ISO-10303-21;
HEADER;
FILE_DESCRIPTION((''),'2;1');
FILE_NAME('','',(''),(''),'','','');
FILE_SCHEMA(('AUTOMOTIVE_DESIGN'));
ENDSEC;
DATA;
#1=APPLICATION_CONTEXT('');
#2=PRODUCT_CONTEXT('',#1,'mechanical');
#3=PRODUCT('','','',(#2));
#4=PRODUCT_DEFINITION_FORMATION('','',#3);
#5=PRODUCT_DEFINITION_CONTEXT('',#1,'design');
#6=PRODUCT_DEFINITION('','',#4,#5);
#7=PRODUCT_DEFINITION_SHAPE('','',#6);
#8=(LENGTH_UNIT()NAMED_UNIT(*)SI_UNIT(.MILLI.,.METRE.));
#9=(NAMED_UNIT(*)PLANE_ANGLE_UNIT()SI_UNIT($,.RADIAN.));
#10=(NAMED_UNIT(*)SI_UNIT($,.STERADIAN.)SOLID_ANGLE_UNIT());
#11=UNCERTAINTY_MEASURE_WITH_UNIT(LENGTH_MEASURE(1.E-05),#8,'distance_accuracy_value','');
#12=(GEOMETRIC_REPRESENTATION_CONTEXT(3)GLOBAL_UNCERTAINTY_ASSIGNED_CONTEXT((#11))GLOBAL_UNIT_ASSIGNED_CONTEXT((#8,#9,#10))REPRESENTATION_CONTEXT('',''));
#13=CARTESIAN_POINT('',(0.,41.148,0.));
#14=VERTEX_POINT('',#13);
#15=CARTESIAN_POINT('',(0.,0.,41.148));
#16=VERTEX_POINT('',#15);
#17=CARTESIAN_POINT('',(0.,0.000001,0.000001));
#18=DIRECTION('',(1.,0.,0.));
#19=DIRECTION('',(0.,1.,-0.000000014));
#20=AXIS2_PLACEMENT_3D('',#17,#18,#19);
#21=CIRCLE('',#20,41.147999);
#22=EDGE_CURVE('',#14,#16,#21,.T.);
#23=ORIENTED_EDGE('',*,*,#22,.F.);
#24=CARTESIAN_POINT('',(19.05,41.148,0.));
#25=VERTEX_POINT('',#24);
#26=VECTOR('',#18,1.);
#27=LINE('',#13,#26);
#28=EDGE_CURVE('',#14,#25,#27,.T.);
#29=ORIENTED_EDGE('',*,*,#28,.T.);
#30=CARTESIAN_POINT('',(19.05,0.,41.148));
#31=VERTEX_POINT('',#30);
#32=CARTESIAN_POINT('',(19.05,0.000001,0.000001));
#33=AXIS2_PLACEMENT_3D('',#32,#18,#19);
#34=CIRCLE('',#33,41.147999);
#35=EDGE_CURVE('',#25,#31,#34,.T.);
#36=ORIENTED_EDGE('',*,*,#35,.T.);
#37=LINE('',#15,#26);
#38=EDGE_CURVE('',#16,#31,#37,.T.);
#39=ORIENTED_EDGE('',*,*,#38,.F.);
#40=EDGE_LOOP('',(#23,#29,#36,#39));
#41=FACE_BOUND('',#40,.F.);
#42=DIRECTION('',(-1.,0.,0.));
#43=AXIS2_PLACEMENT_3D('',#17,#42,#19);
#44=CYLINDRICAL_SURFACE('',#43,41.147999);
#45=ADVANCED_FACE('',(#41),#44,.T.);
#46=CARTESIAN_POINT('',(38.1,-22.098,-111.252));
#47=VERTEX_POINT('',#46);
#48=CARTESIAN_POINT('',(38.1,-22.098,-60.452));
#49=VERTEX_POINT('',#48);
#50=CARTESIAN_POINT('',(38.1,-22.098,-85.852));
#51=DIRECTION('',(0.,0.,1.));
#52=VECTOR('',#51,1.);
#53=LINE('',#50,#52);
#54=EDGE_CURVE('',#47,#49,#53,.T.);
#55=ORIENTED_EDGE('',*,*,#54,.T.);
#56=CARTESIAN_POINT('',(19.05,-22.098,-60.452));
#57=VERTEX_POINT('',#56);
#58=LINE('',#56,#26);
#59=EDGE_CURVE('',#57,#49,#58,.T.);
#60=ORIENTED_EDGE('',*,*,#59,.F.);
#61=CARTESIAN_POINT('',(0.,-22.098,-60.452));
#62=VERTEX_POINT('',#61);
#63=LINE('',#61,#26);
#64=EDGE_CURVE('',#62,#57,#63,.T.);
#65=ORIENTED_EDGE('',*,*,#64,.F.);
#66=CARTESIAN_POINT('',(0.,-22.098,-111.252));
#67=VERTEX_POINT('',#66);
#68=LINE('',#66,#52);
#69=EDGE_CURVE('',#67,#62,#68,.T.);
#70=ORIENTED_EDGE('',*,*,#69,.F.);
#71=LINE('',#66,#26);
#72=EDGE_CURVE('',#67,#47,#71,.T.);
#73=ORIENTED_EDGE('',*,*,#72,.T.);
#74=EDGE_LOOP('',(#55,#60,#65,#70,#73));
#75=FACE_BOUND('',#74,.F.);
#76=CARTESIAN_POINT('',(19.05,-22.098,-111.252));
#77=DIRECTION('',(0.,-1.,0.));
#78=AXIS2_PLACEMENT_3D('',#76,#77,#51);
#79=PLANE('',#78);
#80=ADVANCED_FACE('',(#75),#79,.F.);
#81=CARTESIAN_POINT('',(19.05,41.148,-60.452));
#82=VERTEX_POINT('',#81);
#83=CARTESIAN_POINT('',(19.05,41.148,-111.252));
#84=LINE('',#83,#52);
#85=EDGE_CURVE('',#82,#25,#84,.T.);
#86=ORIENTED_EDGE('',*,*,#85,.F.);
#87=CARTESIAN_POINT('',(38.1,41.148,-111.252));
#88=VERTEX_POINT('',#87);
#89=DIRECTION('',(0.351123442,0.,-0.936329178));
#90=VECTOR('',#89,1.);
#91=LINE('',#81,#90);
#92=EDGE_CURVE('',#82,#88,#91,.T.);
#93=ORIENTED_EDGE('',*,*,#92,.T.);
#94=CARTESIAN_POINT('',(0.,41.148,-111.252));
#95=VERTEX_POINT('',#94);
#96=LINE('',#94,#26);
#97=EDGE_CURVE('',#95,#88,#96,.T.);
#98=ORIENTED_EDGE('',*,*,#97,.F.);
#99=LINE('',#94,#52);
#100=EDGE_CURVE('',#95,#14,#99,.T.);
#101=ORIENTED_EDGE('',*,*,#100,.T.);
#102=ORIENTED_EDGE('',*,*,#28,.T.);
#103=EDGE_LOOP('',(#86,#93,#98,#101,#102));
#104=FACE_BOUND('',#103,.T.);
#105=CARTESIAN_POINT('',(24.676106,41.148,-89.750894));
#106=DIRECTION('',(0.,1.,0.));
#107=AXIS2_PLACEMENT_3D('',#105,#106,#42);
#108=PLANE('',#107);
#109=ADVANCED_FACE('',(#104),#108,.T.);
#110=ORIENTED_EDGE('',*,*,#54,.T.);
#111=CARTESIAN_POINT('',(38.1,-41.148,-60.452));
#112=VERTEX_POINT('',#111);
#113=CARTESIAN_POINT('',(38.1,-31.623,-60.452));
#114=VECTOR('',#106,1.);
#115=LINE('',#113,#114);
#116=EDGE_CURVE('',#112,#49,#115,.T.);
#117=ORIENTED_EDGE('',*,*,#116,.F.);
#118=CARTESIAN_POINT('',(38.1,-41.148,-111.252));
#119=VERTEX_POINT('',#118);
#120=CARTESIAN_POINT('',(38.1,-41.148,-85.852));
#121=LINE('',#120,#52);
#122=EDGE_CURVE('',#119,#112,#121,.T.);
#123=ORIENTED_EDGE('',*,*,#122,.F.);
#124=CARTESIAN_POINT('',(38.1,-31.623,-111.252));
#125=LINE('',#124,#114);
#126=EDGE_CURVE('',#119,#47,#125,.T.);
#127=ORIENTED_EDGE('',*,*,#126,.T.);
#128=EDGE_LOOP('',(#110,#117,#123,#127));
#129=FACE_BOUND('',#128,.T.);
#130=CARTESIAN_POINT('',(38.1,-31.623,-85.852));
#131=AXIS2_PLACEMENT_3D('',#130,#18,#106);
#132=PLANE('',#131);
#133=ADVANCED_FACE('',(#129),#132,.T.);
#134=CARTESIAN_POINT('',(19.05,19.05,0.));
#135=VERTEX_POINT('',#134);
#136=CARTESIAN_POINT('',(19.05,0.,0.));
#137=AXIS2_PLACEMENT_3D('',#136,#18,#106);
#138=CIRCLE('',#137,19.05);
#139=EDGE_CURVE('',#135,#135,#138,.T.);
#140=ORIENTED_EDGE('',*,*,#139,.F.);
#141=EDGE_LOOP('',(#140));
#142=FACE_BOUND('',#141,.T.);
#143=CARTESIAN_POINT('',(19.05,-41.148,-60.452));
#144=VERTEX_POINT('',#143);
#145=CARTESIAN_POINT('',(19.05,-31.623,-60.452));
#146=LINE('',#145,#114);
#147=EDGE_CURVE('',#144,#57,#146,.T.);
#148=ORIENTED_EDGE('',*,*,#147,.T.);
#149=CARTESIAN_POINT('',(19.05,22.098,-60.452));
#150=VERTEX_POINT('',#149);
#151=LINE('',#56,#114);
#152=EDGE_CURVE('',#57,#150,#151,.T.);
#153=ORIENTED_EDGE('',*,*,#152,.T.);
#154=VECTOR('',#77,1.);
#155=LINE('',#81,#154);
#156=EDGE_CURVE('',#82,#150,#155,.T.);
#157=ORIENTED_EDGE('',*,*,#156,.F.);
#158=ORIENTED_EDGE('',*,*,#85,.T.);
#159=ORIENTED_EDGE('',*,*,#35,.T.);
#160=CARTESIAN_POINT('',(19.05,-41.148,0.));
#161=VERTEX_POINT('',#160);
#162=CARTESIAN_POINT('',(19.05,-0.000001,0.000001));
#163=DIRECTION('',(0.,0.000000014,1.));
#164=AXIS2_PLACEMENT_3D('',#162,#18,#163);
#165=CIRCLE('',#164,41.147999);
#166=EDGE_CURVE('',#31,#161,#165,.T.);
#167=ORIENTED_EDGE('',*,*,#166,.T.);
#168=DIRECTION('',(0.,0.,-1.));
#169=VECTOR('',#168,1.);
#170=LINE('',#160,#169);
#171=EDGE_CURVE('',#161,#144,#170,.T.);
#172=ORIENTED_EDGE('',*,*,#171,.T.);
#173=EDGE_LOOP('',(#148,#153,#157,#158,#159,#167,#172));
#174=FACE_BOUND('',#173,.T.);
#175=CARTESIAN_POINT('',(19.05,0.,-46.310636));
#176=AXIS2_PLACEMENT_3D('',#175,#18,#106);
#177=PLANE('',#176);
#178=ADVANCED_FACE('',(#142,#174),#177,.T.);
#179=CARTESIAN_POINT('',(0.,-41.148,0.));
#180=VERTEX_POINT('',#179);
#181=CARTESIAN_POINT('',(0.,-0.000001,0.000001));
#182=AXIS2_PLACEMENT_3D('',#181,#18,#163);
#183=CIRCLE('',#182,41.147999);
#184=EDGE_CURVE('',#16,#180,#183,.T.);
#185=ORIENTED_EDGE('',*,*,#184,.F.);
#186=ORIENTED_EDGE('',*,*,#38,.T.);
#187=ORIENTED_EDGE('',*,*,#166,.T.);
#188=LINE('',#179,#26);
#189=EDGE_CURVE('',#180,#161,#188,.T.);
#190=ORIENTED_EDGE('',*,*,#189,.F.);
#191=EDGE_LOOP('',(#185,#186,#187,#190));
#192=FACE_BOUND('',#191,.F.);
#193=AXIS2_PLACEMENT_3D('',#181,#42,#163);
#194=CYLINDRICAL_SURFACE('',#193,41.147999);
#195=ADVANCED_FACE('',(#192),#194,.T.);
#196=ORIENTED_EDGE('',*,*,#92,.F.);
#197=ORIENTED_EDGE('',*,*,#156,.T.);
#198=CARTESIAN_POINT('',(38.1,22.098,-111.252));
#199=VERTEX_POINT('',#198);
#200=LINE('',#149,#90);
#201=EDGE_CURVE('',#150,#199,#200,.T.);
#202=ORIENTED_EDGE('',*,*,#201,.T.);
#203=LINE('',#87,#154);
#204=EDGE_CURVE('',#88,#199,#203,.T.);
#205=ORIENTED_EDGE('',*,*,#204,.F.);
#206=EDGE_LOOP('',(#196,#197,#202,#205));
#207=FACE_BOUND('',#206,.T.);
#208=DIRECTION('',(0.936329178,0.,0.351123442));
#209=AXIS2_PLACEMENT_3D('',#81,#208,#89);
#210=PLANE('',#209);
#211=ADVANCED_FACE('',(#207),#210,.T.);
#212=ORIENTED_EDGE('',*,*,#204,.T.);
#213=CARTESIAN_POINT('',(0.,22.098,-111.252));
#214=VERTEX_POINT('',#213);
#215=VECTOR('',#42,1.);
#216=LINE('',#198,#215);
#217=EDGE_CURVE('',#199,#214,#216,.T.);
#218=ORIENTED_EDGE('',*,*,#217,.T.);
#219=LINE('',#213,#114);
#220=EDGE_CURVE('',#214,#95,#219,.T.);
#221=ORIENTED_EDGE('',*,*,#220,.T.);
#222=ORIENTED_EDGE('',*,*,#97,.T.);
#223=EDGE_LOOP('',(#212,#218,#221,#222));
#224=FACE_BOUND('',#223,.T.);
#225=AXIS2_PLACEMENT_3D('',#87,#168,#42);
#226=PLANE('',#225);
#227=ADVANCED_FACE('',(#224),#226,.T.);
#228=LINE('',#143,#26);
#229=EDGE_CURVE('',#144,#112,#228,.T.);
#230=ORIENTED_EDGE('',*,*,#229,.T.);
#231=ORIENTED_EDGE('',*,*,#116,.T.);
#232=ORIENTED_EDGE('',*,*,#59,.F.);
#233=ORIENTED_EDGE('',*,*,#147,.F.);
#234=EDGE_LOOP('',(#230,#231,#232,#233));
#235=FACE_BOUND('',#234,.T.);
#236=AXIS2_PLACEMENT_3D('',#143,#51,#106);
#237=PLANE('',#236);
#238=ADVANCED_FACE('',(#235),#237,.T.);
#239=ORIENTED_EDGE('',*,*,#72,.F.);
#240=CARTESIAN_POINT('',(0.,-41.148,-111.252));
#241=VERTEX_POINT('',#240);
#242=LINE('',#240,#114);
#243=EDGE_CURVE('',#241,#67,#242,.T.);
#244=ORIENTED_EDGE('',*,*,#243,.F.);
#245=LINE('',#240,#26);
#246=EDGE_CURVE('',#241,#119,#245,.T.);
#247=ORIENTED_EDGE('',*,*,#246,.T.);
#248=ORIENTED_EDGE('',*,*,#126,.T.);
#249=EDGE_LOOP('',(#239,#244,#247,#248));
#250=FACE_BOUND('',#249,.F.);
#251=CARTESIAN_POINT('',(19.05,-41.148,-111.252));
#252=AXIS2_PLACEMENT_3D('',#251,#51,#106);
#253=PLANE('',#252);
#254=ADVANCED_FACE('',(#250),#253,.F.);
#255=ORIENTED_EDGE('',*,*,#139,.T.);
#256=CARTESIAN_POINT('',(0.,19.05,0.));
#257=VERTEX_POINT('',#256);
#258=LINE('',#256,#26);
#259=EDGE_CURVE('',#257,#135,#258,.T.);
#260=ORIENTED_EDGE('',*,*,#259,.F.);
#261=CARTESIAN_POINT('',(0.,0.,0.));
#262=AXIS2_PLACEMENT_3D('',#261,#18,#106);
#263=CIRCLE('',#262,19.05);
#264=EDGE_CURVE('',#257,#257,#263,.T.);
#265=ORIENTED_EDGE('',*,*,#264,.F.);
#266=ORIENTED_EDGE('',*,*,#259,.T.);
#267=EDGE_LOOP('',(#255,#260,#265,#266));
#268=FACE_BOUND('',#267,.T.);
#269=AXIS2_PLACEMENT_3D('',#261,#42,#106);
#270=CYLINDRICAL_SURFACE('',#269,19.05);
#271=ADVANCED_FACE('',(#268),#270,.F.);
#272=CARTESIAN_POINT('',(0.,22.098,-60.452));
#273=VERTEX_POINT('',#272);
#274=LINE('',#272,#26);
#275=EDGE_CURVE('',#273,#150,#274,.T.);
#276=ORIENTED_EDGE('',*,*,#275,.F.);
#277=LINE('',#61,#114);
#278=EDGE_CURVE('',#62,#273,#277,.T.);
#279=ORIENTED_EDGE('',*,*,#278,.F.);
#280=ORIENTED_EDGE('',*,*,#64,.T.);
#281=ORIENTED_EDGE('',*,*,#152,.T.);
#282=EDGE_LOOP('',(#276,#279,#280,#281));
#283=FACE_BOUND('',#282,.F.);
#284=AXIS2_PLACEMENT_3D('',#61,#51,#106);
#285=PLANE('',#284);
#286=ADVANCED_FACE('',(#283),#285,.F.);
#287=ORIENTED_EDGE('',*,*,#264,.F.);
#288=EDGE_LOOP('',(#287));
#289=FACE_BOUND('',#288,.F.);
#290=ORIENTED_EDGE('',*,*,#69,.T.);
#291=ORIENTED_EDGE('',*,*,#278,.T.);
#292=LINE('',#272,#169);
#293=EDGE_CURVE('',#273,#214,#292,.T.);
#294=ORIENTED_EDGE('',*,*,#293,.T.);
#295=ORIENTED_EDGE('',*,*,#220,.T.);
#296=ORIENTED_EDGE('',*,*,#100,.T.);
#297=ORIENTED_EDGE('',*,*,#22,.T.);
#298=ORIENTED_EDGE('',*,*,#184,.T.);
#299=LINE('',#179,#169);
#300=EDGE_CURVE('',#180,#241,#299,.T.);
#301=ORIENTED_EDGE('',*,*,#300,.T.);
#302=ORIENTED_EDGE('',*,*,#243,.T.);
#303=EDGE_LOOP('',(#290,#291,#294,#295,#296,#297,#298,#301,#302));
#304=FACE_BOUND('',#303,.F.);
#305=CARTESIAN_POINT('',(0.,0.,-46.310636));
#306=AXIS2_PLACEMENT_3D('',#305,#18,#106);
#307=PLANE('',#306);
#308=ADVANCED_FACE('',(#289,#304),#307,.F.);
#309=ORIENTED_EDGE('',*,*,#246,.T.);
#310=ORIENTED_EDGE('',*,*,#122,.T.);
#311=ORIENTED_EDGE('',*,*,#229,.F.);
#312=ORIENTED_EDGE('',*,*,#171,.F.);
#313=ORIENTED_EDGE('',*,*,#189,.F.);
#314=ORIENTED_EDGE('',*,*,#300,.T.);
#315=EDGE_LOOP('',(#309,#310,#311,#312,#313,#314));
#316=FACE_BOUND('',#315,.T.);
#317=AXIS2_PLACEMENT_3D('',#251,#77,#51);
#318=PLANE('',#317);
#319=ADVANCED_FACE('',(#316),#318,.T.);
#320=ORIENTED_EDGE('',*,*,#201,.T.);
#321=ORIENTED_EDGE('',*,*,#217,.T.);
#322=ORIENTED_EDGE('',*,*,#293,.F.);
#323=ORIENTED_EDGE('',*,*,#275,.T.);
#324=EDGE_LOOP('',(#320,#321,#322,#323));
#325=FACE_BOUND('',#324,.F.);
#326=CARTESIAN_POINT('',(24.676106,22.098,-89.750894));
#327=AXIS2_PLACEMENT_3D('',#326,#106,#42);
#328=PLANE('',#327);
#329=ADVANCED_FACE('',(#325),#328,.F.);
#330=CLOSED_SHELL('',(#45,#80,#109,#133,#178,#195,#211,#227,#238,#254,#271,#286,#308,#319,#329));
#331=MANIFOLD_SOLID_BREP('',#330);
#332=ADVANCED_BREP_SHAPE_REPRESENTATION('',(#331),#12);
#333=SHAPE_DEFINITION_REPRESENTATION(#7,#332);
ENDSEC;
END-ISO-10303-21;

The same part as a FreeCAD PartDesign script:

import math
import FreeCAD as App
import Part
import Sketcher
Q = App.Units.Quantity


def add_polygon(sketch, points):
    """Adds a closed chain of lines whose ends are joined by coincident constraints."""
    first, n = sketch.GeometryCount, len(points)
    for a, b in zip(points, points[1:] + points[:1]):
        sketch.addGeometry(Part.LineSegment(App.Vector(*a, 0), App.Vector(*b, 0)), False)
    for i in range(n):
        sketch.addConstraint(Sketcher.Constraint("Coincident", first + i, 2, first + (i + 1) % n, 1))

doc = App.newDocument("Part")
body = doc.addObject("PartDesign::Body", "Body")

# Sketch on YZ plane
sketch1 = doc.addObject("Sketcher::SketchObject", "Sketch")
body.addObject(sketch1)
sketch1.AttachmentSupport = (doc.YZ_Plane, [""])
sketch1.MapMode = "FlatFace"
sketch1.addGeometry(Part.ArcOfCircle(Part.Circle(App.Vector(0, 0, 0), App.Vector(0, 0, 1), 41), math.radians(90), math.radians(180)), False)
sketch1.addGeometry(Part.LineSegment(App.Vector(-41, 0, 0), App.Vector(-41, -111, 0)), False)
sketch1.addGeometry(Part.LineSegment(App.Vector(-41, -111, 0), App.Vector(-22, -111, 0)), False)
sketch1.addGeometry(Part.LineSegment(App.Vector(-22, -111, 0), App.Vector(-22, -60, 0)), False)
sketch1.addGeometry(Part.LineSegment(App.Vector(-22, -60, 0), App.Vector(22, -60, 0)), False)
sketch1.addGeometry(Part.LineSegment(App.Vector(22, -60, 0), App.Vector(22, -111, 0)), False)
sketch1.addGeometry(Part.LineSegment(App.Vector(22, -111, 0), App.Vector(41, -111, 0)), False)
sketch1.addGeometry(Part.LineSegment(App.Vector(41, -111, 0), App.Vector(41, 0, 0)), False)
sketch1.addGeometry(Part.ArcOfCircle(Part.Circle(App.Vector(0, 0, 0), App.Vector(0, 0, 1), 41), math.radians(0), math.radians(90)), False)
sketch1.addGeometry(Part.Circle(App.Vector(0, 0, 0), App.Vector(0, 0, 1), 19), False)
sketch1.addConstraint(Sketcher.Constraint("Tangent", 0, 2, 1, 1))
sketch1.addConstraint(Sketcher.Constraint("Coincident", 1, 2, 2, 1))
sketch1.addConstraint(Sketcher.Constraint("Coincident", 2, 2, 3, 1))
sketch1.addConstraint(Sketcher.Constraint("Coincident", 3, 2, 4, 1))
sketch1.addConstraint(Sketcher.Constraint("Coincident", 4, 2, 5, 1))
sketch1.addConstraint(Sketcher.Constraint("Coincident", 5, 2, 6, 1))
sketch1.addConstraint(Sketcher.Constraint("Coincident", 6, 2, 7, 1))
sketch1.addConstraint(Sketcher.Constraint("Tangent", 7, 2, 8, 1))
sketch1.addConstraint(Sketcher.Constraint("Tangent", 8, 2, 0, 1))
sketch1.addConstraint(Sketcher.Constraint("Vertical", 1))
sketch1.addConstraint(Sketcher.Constraint("Horizontal", 2))
sketch1.addConstraint(Sketcher.Constraint("Vertical", 3))
sketch1.addConstraint(Sketcher.Constraint("Horizontal", 4))
sketch1.addConstraint(Sketcher.Constraint("Vertical", 5))
sketch1.addConstraint(Sketcher.Constraint("Horizontal", 6))
sketch1.addConstraint(Sketcher.Constraint("Vertical", 7))
sketch1.addConstraint(Sketcher.Constraint("Coincident", 0, 3, -1, 1))
sketch1.addConstraint(Sketcher.Constraint("Coincident", 9, 3, -1, 1))
sketch1.addConstraint(Sketcher.Constraint("Equal", 0, 8))
sketch1.addConstraint(Sketcher.Constraint("Symmetric", 2, 2, 5, 2, -2))
sketch1.addConstraint(Sketcher.Constraint("PointOnObject", 8, 2, -2))
sketch1.addConstraint(Sketcher.Constraint("Diameter", 9, Q("1.5 in")))
sketch1.addConstraint(Sketcher.Constraint("DistanceY", 3, 1, 3, 2, Q("2 in")))
sketch1.addConstraint(Sketcher.Constraint("Radius", 0, Q("1.62 in")))
sketch1.addConstraint(Sketcher.Constraint("DistanceX", 2, 1, 2, 2, Q("0.75 in")))
sketch1.addConstraint(Sketcher.Constraint("DistanceY", 1, 2, 1, 1, Q("4.38 in")))
pad1 = doc.addObject("PartDesign::Pad", "Pad")
body.addObject(pad1)
pad1.Profile = sketch1
pad1.Length = Q("0.75 in")

# Sketch on YZ plane
sketch2 = doc.addObject("Sketcher::SketchObject", "Sketch001")
body.addObject(sketch2)
sketch2.AttachmentSupport = (doc.YZ_Plane, [""])
sketch2.MapMode = "FlatFace"
sketch2.AttachmentOffset = App.Placement(App.Vector(0, 0, 0.75 * 25.4), App.Rotation())
add_polygon(sketch2, [(-41, -60), (-41, -111), (-22, -111), (-22, -60)])  # lines 0-3
sketch2.addConstraint(Sketcher.Constraint("Vertical", 0))
sketch2.addConstraint(Sketcher.Constraint("Horizontal", 1))
sketch2.addConstraint(Sketcher.Constraint("Vertical", 2))
sketch2.addConstraint(Sketcher.Constraint("Horizontal", 3))
sketch2.addConstraint(Sketcher.Constraint("DistanceY", 0, 2, 0, 1, Q("2 in")))
sketch2.addConstraint(Sketcher.Constraint("DistanceX", 1, 1, 1, 2, Q("0.75 in")))
sketch2.addConstraint(Sketcher.Constraint("DistanceX", 0, 2, -1, 1, Q("1.62 in")))
sketch2.addConstraint(Sketcher.Constraint("DistanceY", 0, 2, -1, 1, Q("4.38 in")))
pad2 = doc.addObject("PartDesign::Pad", "Pad001")
body.addObject(pad2)
pad2.Profile = sketch2
pad2.Length = Q("0.75 in")

# Sketch on XZ plane
sketch3 = doc.addObject("Sketcher::SketchObject", "Sketch002")
body.addObject(sketch3)
sketch3.AttachmentSupport = (doc.XZ_Plane, [""])
sketch3.MapMode = "FlatFace"
sketch3.AttachmentOffset = App.Placement(App.Vector(0, 0, -1.62 * 25.4), App.Rotation())
add_polygon(sketch3, [(19, -60), (38, -111), (19, -111)])  # lines 0-2
sketch3.addConstraint(Sketcher.Constraint("Horizontal", 1))
sketch3.addConstraint(Sketcher.Constraint("Vertical", 2))
sketch3.addConstraint(Sketcher.Constraint("DistanceY", 2, 1, 2, 2, Q("2 in")))
sketch3.addConstraint(Sketcher.Constraint("DistanceX", 1, 2, 1, 1, Q("0.75 in")))
sketch3.addConstraint(Sketcher.Constraint("DistanceX", -1, 1, 0, 2, Q("1.5 in")))
sketch3.addConstraint(Sketcher.Constraint("DistanceY", 0, 2, -1, 1, Q("4.38 in")))
pad3 = doc.addObject("PartDesign::Pad", "Pad002")
body.addObject(pad3)
pad3.Profile = sketch3
pad3.Length = Q("0.75 in")

doc.recompute()
